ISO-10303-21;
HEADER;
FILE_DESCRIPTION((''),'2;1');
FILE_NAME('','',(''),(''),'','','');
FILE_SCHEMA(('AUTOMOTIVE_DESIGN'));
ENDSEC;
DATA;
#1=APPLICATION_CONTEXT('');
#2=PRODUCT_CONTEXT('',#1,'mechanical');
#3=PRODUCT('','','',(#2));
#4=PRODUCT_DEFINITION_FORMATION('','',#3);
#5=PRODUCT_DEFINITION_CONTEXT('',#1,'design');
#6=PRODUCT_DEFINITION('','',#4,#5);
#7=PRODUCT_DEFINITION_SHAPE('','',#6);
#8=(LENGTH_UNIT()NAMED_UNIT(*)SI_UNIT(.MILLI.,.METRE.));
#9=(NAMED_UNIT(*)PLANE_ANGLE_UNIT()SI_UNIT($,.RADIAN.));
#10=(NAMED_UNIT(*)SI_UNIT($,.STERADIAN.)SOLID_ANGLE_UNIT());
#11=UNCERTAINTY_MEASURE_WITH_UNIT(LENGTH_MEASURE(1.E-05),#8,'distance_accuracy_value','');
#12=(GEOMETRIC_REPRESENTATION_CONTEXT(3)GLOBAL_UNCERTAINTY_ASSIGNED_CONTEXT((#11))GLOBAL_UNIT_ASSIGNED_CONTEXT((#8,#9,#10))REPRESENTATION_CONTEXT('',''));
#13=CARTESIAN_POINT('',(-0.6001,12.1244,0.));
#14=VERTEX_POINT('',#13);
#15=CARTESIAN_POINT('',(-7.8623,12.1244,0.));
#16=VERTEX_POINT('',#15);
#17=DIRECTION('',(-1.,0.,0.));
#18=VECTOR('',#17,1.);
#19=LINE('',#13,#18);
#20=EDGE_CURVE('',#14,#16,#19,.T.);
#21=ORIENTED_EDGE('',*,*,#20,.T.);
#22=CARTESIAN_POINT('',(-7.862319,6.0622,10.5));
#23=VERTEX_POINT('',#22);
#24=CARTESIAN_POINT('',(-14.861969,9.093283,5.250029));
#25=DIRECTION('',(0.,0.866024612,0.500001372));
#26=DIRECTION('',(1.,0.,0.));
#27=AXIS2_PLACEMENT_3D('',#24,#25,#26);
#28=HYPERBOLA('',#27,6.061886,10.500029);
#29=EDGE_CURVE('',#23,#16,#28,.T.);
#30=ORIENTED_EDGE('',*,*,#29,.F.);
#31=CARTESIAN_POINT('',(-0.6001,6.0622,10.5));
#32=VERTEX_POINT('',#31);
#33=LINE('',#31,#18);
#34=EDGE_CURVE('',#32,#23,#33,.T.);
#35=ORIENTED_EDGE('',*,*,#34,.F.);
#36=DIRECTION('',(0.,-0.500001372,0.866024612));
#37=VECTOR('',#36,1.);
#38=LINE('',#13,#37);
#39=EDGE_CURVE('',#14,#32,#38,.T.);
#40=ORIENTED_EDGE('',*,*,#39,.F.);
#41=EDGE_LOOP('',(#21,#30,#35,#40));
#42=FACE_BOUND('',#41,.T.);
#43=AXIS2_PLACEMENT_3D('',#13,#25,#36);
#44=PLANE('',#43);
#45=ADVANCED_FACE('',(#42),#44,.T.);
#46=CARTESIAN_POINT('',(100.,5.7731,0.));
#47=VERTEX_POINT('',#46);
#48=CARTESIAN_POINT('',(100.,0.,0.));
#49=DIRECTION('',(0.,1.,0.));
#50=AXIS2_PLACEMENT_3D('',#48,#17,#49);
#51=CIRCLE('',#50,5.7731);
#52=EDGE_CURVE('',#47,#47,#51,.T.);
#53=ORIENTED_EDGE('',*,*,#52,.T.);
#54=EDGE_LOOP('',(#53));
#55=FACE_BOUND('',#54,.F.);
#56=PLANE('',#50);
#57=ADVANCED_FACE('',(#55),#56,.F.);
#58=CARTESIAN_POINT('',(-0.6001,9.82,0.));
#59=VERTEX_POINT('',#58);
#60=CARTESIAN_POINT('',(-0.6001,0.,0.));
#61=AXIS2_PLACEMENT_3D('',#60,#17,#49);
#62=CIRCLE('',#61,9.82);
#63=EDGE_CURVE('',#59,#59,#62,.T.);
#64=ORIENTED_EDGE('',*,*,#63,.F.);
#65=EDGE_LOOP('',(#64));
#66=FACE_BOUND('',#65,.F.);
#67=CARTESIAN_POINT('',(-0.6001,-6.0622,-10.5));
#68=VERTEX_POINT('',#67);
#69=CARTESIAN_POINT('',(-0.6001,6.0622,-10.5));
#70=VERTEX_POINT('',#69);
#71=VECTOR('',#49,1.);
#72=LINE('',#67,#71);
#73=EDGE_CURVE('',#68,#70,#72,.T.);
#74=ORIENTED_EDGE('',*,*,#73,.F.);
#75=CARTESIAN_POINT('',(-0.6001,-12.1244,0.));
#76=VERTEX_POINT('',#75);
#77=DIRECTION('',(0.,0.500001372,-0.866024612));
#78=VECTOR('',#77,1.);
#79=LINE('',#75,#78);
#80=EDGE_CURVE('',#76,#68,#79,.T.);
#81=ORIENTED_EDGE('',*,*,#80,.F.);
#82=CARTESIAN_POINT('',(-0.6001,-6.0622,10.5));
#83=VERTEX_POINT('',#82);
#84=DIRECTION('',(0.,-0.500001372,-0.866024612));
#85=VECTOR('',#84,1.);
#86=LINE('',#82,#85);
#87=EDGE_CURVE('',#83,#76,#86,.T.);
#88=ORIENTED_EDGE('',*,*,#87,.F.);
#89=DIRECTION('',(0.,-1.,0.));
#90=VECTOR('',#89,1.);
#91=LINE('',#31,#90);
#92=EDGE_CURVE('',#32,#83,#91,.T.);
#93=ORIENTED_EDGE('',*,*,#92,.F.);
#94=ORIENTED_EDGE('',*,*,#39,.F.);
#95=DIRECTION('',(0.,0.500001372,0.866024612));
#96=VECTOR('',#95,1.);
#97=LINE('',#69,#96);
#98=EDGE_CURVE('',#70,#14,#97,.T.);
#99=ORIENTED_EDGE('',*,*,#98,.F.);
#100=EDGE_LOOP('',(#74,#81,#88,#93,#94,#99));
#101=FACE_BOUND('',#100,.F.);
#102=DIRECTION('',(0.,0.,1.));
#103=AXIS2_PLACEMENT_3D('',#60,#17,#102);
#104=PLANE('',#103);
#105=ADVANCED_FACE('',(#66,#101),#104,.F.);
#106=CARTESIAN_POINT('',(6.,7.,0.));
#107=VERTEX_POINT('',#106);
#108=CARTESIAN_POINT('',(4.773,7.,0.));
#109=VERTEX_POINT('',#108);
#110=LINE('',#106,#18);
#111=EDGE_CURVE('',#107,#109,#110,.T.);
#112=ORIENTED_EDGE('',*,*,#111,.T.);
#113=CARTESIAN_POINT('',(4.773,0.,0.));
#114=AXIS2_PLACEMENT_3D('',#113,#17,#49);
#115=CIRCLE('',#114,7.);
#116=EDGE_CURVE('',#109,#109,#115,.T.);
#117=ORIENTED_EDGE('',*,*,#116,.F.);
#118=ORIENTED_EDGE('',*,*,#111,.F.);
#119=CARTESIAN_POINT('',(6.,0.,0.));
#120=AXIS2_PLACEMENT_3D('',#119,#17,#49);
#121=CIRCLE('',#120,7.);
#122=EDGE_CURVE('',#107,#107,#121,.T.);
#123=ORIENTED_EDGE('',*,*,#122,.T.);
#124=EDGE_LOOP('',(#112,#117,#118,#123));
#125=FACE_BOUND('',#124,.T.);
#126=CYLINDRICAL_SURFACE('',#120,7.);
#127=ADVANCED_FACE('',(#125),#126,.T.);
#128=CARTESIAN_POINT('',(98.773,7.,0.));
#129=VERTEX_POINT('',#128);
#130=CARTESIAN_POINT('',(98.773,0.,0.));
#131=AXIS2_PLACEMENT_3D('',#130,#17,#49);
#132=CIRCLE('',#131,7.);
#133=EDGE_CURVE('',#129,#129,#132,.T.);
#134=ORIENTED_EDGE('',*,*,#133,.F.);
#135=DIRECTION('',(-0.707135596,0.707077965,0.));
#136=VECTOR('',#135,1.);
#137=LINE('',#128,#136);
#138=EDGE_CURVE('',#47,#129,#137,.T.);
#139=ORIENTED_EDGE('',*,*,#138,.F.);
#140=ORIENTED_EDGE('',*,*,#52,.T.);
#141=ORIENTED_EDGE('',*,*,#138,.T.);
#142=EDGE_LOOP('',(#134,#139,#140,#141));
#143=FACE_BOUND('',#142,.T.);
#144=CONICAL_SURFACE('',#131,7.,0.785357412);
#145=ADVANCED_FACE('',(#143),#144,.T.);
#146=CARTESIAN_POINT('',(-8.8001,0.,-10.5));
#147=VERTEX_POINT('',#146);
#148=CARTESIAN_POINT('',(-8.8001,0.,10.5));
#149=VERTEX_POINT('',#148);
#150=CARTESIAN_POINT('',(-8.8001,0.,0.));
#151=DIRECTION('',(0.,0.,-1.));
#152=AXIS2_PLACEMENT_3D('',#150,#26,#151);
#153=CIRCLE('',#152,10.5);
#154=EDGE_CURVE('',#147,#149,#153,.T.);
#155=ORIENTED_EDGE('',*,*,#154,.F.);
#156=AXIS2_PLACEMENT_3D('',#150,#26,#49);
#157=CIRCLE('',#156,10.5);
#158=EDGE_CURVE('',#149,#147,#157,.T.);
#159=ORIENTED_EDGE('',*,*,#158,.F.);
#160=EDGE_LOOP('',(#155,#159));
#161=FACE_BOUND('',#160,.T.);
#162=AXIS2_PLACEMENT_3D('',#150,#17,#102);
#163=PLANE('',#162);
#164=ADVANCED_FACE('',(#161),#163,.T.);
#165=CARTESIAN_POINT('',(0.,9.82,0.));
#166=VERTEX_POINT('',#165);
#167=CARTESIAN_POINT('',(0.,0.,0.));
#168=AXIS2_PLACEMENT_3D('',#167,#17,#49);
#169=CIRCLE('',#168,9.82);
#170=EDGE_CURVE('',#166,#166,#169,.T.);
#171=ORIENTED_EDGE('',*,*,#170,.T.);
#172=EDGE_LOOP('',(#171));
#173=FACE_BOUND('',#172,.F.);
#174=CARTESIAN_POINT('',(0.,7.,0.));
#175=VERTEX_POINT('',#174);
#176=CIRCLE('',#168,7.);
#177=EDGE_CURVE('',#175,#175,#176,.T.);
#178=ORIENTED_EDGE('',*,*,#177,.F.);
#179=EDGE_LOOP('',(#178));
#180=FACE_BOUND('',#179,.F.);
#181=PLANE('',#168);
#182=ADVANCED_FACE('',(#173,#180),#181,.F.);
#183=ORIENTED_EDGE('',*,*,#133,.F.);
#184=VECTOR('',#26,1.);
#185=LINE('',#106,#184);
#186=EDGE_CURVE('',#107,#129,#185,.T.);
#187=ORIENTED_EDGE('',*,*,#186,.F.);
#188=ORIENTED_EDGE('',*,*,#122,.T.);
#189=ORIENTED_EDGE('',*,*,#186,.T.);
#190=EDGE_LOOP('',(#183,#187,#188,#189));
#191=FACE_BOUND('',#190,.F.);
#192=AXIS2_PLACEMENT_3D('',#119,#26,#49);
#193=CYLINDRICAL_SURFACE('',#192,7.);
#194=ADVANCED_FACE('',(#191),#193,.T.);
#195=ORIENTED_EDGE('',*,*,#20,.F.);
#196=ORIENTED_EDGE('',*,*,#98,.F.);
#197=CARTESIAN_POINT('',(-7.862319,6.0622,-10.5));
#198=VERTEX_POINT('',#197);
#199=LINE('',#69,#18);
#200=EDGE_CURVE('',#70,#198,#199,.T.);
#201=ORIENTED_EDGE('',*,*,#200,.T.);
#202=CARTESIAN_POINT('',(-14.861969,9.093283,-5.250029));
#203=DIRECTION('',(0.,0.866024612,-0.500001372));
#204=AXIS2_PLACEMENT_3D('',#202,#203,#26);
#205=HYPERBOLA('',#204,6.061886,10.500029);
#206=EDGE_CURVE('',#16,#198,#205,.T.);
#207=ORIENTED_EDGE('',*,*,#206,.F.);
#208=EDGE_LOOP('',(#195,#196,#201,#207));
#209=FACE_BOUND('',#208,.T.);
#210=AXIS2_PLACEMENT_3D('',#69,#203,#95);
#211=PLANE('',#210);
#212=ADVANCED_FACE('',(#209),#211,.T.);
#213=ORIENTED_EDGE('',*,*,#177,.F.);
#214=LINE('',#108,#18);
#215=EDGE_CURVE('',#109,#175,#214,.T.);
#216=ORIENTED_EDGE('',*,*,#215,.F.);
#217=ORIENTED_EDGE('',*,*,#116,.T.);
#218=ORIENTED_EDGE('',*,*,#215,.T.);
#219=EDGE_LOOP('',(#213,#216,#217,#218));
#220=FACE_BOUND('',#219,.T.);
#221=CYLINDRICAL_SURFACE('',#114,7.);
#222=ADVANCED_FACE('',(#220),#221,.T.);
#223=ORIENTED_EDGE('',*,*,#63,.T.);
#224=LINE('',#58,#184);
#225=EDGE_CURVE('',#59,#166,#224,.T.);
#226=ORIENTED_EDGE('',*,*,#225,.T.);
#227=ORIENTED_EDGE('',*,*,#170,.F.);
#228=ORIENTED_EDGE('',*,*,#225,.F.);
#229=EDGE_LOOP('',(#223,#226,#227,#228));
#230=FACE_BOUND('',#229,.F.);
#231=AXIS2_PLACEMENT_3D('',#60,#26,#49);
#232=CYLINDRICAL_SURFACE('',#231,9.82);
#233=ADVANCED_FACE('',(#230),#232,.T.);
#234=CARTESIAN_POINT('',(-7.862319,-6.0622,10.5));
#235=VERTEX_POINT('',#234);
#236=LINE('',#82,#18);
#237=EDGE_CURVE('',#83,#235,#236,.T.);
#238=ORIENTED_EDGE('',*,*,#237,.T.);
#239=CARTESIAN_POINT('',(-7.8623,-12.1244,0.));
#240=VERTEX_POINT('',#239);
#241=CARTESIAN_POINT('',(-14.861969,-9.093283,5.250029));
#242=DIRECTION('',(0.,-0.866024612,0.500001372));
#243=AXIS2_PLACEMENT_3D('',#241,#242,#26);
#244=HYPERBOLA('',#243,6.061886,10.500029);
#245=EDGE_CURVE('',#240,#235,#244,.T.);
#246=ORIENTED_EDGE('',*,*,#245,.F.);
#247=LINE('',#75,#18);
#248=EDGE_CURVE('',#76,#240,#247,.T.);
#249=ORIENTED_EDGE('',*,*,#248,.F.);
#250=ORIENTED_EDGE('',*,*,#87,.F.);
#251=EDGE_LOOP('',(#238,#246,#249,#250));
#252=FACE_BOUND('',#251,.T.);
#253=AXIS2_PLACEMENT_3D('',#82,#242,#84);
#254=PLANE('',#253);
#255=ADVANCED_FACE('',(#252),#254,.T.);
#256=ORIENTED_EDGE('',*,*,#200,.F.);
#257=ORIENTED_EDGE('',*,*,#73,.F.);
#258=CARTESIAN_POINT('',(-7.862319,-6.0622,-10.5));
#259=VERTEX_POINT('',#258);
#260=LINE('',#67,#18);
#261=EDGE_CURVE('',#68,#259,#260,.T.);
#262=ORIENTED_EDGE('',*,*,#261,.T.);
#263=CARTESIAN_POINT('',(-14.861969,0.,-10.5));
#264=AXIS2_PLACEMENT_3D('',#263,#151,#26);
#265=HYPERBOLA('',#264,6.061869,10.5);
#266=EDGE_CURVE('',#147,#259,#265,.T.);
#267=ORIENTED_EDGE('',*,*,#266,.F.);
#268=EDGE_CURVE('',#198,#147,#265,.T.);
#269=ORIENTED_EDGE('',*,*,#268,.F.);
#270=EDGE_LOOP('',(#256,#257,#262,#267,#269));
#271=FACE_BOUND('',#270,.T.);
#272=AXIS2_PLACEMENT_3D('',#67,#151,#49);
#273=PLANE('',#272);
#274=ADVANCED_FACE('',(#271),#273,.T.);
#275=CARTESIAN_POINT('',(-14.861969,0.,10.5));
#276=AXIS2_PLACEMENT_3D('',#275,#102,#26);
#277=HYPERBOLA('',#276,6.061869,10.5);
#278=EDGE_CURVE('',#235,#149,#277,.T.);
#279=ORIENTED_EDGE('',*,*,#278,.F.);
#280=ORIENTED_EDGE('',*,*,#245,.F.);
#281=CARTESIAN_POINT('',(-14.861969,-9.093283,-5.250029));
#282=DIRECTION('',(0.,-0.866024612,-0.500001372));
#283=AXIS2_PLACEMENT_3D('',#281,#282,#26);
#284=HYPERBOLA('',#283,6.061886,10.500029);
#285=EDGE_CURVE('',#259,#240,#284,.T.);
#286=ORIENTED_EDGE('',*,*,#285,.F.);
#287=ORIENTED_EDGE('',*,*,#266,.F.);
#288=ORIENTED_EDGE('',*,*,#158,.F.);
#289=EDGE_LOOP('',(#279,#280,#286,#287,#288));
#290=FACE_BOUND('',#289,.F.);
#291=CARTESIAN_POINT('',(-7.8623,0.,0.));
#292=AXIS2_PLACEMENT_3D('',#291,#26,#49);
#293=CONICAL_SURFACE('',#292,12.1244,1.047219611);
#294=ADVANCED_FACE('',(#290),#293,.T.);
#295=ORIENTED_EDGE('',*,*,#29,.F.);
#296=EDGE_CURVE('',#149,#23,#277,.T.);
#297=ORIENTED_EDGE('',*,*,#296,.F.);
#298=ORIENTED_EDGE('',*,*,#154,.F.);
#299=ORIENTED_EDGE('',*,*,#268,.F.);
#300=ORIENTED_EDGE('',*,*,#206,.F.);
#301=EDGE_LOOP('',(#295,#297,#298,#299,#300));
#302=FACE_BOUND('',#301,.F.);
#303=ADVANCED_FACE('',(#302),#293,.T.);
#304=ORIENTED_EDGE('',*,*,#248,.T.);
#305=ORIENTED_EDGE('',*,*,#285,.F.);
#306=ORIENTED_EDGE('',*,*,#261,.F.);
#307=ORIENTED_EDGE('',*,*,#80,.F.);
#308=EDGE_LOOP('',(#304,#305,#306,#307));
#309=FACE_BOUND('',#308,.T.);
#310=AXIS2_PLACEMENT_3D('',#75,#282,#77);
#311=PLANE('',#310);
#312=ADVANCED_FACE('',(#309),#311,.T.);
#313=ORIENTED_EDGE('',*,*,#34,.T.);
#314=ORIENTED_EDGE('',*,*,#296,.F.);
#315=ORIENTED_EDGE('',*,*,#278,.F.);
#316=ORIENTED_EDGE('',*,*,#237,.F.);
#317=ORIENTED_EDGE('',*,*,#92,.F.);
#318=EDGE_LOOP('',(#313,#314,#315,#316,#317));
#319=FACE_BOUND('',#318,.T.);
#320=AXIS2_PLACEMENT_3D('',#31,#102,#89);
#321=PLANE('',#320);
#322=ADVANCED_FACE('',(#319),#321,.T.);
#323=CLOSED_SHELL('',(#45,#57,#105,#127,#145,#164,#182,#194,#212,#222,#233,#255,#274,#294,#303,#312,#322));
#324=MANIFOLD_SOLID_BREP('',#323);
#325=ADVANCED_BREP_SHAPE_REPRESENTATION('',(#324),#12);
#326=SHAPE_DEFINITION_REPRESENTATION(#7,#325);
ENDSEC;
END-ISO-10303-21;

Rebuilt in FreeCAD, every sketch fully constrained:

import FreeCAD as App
import Part
import Sketcher
from FreeCAD import Vector
Q = App.Units.Quantity


def edges_at(feature, points):
    """Names of the edges that pass closest to the given points."""
    edges = feature.Shape.Edges
    near = lambda p: min(range(len(edges)), key=lambda i: edges[i].distToShape(Part.Vertex(*p))[0])
    return sorted({f"Edge{near(p) + 1}" for p in points})


def add_polygon(sketch, points):
    """Adds a closed chain of lines whose ends are joined by coincident constraints."""
    first, n = sketch.GeometryCount, len(points)
    for a, b in zip(points, points[1:] + points[:1]):
        sketch.addGeometry(Part.LineSegment(App.Vector(*a, 0), App.Vector(*b, 0)), False)
    for i in range(n):
        sketch.addConstraint(Sketcher.Constraint("Coincident", first + i, 2, first + (i + 1) % n, 1))

doc = App.newDocument("Part")
body = doc.addObject("PartDesign::Body", "Body")

sketch1 = body.newObject("Sketcher::SketchObject", "Sketch")
sketch1.AttachmentSupport = (doc.getObject("XY_Plane"), [""])
sketch1.MapMode = "FlatFace"
add_polygon(sketch1, [(0, 7), (0, 9.8), (-0.6, 9.8), (-0.6, 0), (100, 0), (100, 7)])
sketch1.addConstraint([
    Sketcher.Constraint("Vertical", 0),
    Sketcher.Constraint("Horizontal", 1),
    Sketcher.Constraint("Vertical", 2),
    Sketcher.Constraint("Horizontal", 3),
    Sketcher.Constraint("Vertical", 4),
    Sketcher.Constraint("Horizontal", 5),
    Sketcher.Constraint("PointOnObject", 0, 2, -2),
    Sketcher.Constraint("PointOnObject", 2, 2, -1),
    Sketcher.Constraint("DistanceX", 5, 2, 5, 1, Q("100 mm")),
    Sketcher.Constraint("DistanceX", 1, 2, 1, 1, Q("0.6 mm")),
    Sketcher.Constraint("DistanceY", 4, 1, 4, 2, Q("7 mm")),
    Sketcher.Constraint("DistanceY", 0, 1, 0, 2, Q("2.82 mm")),
])
revolution = body.newObject("PartDesign::Revolution", "Revolution")
revolution.Profile = sketch1
revolution.ReferenceAxis = (sketch1, ["H_Axis"])
revolution.Angle = 360

sketch2 = body.newObject("Sketcher::SketchObject", "Sketch001")
sketch2.AttachmentSupport = (doc.getObject("YZ_Plane"), [""])
sketch2.MapMode = "FlatFace"
sketch2.AttachmentOffset = App.Placement(Vector(0, 0, -0.6001), App.Rotation())
add_polygon(sketch2, [(6, 10), (12, 0), (6, -10), (-6, -10), (-12, 0), (-6, 10)])
sketch2.addConstraint([
    Sketcher.Constraint("Horizontal", 2),
    Sketcher.Constraint("Horizontal", 5),
    Sketcher.Constraint("Symmetric", 0, 2, 3, 2, -1, 1),
    Sketcher.Constraint("Symmetric", 1, 2, 4, 2, -1, 1),
    Sketcher.Constraint("PointOnObject", 0, 2, -1),
    Sketcher.Constraint("Parallel", 0, 3),
    Sketcher.Constraint("Vertical", 2, 2, 4, 2),
    Sketcher.Constraint("DistanceY", 2, 2, 4, 2, Q("21 mm")),
    Sketcher.Constraint("Angle", 0, Q("-60 deg")),
    Sketcher.Constraint("DistanceX", 2, 2, 2, 1, Q("12.1244 mm")),
])
pad1 = body.newObject("PartDesign::Pad", "Pad")
pad1.Profile = sketch2
pad1.Length = 8.2
pad1.Reversed = True

sketch3 = body.newObject("Sketcher::SketchObject", "Sketch002")
sketch3.AttachmentSupport = (doc.getObject("XY_Plane"), [""])
sketch3.MapMode = "FlatFace"
add_polygon(sketch3, [(-8.8, 12.1), (-8.8, 10.5), (-7.9, 12.1)])
sketch3.addConstraint([
    Sketcher.Constraint("Vertical", 0),
    Sketcher.Constraint("Horizontal", 2),
    Sketcher.Constraint("DistanceX", 0, 2, -1, 1, Q("8.8 mm")),
    Sketcher.Constraint("DistanceY", -1, 1, 0, 2, Q("10.5 mm")),
    Sketcher.Constraint("DistanceX", 2, 2, 2, 1, Q("0.9378 mm")),
    Sketcher.Constraint("DistanceY", 0, 2, 0, 1, Q("1.6244 mm")),
])
groove = body.newObject("PartDesign::Groove", "Groove")
groove.Profile = sketch3
groove.ReferenceAxis = (sketch3, ["H_Axis"])
groove.Angle = 360
doc.recompute()

chamfer = body.newObject("PartDesign::Chamfer", "Chamfer")
chamfer.Base = (groove, edges_at(groove, [(100, -7, 0)]))
chamfer.ChamferType = "Two distances"
chamfer.Size = 1.2269
chamfer.Size2 = 1.227

doc.recompute()
